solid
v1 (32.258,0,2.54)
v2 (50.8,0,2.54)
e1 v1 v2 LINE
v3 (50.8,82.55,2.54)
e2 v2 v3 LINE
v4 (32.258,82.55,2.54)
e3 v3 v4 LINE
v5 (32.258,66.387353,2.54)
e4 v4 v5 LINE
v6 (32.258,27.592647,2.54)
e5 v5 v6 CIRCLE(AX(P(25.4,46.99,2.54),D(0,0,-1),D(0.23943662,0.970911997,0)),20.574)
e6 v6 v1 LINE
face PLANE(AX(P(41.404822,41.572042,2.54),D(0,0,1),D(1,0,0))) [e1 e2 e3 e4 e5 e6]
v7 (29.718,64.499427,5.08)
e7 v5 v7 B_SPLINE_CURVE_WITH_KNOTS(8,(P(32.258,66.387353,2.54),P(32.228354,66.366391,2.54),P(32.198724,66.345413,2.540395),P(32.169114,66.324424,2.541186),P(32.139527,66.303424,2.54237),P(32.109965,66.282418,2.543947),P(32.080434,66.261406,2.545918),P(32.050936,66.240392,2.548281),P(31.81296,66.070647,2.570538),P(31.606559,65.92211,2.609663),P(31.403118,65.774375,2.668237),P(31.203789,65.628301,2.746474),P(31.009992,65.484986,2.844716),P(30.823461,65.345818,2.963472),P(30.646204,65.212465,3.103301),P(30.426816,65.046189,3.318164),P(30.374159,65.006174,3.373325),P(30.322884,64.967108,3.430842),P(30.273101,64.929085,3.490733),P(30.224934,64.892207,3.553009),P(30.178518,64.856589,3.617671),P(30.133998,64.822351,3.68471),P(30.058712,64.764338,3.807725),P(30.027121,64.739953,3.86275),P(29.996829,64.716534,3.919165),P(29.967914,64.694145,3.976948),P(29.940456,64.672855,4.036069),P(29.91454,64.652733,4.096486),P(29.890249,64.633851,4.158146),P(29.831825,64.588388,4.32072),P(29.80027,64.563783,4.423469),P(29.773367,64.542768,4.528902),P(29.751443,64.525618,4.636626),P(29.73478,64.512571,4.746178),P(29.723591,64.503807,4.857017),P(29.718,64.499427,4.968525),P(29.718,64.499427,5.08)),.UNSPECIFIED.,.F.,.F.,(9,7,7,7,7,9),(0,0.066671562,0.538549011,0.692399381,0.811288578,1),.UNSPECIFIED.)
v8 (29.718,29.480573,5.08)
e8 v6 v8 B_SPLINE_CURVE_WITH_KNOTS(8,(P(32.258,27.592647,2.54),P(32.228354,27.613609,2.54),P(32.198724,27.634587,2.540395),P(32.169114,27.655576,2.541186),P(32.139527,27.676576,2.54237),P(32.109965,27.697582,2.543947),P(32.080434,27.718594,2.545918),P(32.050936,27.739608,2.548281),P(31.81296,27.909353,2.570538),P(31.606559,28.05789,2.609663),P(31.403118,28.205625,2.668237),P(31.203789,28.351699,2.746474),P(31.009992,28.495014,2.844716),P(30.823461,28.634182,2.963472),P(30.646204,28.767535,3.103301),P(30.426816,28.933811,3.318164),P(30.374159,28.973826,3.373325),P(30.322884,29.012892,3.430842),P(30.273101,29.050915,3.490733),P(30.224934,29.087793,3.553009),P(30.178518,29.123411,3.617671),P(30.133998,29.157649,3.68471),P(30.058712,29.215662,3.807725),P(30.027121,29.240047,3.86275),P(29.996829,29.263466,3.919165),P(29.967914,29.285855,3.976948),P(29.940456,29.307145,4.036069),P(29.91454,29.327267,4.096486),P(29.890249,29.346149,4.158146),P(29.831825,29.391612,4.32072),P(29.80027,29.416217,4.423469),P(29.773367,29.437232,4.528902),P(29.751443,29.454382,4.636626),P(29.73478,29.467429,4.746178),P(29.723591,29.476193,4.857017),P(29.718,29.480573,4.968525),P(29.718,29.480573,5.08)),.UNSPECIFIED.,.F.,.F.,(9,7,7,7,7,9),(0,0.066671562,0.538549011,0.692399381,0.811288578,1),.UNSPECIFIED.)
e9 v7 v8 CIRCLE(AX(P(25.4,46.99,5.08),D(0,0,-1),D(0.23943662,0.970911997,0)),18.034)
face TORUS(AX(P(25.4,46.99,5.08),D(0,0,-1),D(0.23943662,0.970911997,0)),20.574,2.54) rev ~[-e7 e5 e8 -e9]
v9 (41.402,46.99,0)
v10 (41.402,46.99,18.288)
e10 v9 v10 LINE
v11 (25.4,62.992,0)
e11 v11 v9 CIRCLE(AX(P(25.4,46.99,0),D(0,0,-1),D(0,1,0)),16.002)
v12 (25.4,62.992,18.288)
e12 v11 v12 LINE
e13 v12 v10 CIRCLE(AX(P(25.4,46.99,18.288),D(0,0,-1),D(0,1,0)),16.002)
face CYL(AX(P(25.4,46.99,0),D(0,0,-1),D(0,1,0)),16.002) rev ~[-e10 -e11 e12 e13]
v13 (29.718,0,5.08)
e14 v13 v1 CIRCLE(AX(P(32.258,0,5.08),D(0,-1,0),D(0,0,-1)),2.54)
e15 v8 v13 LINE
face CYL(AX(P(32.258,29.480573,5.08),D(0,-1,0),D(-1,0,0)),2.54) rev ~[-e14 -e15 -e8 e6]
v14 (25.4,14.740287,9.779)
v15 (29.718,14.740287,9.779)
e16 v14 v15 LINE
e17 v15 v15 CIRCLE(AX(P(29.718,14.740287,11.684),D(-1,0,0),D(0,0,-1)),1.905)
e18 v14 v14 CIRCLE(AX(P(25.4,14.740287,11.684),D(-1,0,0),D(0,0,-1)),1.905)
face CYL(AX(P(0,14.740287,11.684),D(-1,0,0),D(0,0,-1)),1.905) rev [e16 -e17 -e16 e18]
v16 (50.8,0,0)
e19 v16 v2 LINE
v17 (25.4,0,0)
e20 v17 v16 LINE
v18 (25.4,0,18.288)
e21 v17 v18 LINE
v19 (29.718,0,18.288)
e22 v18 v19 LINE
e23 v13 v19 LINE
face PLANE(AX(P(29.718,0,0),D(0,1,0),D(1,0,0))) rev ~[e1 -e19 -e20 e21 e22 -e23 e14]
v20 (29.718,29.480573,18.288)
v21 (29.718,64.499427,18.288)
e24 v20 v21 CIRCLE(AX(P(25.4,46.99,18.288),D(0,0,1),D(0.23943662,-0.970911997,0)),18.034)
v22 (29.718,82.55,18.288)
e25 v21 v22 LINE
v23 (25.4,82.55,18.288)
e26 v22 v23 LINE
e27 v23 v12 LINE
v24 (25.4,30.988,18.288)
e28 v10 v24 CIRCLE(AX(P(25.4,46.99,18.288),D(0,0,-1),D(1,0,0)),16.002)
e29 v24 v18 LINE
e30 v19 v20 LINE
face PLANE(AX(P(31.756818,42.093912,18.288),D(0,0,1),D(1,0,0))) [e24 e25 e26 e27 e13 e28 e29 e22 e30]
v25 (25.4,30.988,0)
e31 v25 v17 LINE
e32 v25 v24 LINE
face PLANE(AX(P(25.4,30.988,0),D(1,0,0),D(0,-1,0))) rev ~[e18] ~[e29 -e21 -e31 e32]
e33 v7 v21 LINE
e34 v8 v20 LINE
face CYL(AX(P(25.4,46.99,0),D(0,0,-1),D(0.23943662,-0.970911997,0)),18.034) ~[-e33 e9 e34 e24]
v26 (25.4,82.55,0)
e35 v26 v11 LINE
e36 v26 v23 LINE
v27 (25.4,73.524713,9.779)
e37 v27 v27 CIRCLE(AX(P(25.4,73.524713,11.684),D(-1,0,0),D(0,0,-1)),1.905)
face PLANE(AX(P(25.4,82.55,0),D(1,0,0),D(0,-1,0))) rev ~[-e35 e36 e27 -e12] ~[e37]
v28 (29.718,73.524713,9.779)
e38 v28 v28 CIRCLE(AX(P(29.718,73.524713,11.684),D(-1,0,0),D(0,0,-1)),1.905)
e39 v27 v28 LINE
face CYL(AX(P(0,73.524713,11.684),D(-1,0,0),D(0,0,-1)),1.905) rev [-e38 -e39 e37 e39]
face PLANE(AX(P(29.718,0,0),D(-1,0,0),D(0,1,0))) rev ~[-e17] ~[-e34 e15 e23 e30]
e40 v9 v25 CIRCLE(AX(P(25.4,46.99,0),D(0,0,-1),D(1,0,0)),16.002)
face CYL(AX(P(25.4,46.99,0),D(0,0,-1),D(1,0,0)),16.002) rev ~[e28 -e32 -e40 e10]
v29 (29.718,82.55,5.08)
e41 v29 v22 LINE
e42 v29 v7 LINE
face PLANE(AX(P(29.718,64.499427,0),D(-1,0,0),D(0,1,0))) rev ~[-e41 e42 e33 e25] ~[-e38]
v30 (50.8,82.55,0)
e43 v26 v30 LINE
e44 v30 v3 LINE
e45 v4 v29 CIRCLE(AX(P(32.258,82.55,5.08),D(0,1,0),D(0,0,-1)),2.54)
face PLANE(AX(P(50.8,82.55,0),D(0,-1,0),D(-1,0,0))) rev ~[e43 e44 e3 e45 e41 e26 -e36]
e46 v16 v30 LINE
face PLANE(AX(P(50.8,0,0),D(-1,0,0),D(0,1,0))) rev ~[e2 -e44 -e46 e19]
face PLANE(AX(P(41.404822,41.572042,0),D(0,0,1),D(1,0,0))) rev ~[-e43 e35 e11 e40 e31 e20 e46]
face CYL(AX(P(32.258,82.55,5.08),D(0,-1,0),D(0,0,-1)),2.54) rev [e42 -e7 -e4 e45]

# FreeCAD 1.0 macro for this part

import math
import FreeCAD as App
import Part
import Sketcher

V = App.Vector
Q = App.Units.Quantity


def edges_at(feature, points):
    """Names of the edges that pass closest to the given points."""
    edges = feature.Shape.Edges
    near = lambda p: min(range(len(edges)), key=lambda i: edges[i].distToShape(Part.Vertex(*p))[0])
    return sorted({f"Edge{near(p) + 1}" for p in points})

doc = App.newDocument("Part")
params = doc.addObject("Spreadsheet::Sheet", "Params")
for row, (alias, value) in enumerate([
    ("sketch1_radius", "0.71 in"),
    ("sketch1_radius2", "0.63 in"),
    ("sketch1_width", "0.17 in"),
    ("sketch1_height", "1.22 in"),
    ("sketch1_height2", "0.77 in"),
    ("pad1_length", "0.72 in"),
    ("sketch2_radius", "0.71 in"),
    ("sketch2_width", "0.83 in"),
    ("sketch2_height", "3.25 in"),
    ("pad2_length", "0.1 in"),
    ("sketch3_diameter", "0.15 in"),
    ("fillet_radius", "0.1 in"),
], start=1):
    params.set(f"A{row}", alias)
    params.set(f"B{row}", "=" + value)
    params.setAlias(f"B{row}", alias)

body = doc.addObject("PartDesign::Body", "Body")

# Sketch on XY plane
sketch1 = body.newObject("Sketcher::SketchObject", "Sketch")
sketch1.AttachmentSupport = (doc.getObject("XY_Plane"), [""])
sketch1.MapMode = "FlatFace"
sketch1.addGeometry([
    Part.LineSegment(V(25.4, 31, 0), V(25.4, 0, 0)),  # 0
    Part.LineSegment(V(25.4, 0, 0), V(29.7, 0, 0)),  # 1
    Part.LineSegment(V(29.7, 0, 0), V(29.7, 29.5, 0)),  # 2
    Part.ArcOfCircle(Part.Circle(V(25.4, 47, 0), V(0, 0, 1), 18), math.radians(-76), math.radians(76)),  # 3
    Part.LineSegment(V(29.7, 64.5, 0), V(29.7, 82.5, 0)),  # 4
    Part.LineSegment(V(29.7, 82.5, 0), V(25.4, 82.5, 0)),  # 5
    Part.LineSegment(V(25.4, 82.5, 0), V(25.4, 63, 0)),  # 6
    Part.ArcOfCircle(Part.Circle(V(25.4, 47, 0), V(0, 0, 1), 16), math.radians(0), math.radians(90)),  # 7
    Part.ArcOfCircle(Part.Circle(V(25.4, 47, 0), V(0, 0, 1), 16), math.radians(-90), math.radians(0)),  # 8
], False)
sketch1.addConstraint([
    Sketcher.Constraint("Coincident", 0, 2, 1, 1),
    Sketcher.Constraint("Coincident", 1, 2, 2, 1),
    Sketcher.Constraint("Coincident", 2, 2, 3, 1),
    Sketcher.Constraint("Coincident", 3, 2, 4, 1),
    Sketcher.Constraint("Coincident", 4, 2, 5, 1),
    Sketcher.Constraint("Coincident", 5, 2, 6, 1),
    Sketcher.Constraint("Coincident", 6, 2, 7, 2),
    Sketcher.Constraint("Tangent", 7, 1, 8, 2),
    Sketcher.Constraint("Coincident", 8, 1, 0, 1),
    Sketcher.Constraint("Vertical", 0),
    Sketcher.Constraint("Horizontal", 1),
    Sketcher.Constraint("Vertical", 2),
    Sketcher.Constraint("Vertical", 4),
    Sketcher.Constraint("Horizontal", 5),
    Sketcher.Constraint("Vertical", 6),
    Sketcher.Constraint("Coincident", 7, 3, 3, 3),
    Sketcher.Constraint("Equal", 7, 8),
    Sketcher.Constraint("PointOnObject", 0, 2, -1),
    Sketcher.Constraint("Horizontal", 8, 3, 7, 1),
    Sketcher.Constraint("Vertical", 8, 3, 0, 2),
    Sketcher.Constraint("Vertical", 2, 2, 3, 2),
    Sketcher.Constraint("Vertical", 0, 2, 5, 2),
    Sketcher.Constraint("Radius", 3, Q("0.71 in")),
    Sketcher.Constraint("Radius", 7, Q("0.63 in")),
    Sketcher.Constraint("DistanceX", -1, 1, 3, 3, Q("1 in")),
    Sketcher.Constraint("DistanceX", 1, 1, 1, 2, Q("0.17 in")),
    Sketcher.Constraint("DistanceY", 0, 2, 0, 1, Q("1.22 in")),
    Sketcher.Constraint("DistanceY", 6, 2, 6, 1, Q("0.77 in")),
])
sketch1.setExpression("Constraints[22]", "Params.sketch1_radius")
sketch1.setExpression("Constraints[23]", "Params.sketch1_radius2")
sketch1.setExpression("Constraints[25]", "Params.sketch1_width")
sketch1.setExpression("Constraints[26]", "Params.sketch1_height")
sketch1.setExpression("Constraints[27]", "Params.sketch1_height2")
pad1 = body.newObject("PartDesign::Pad", "Pad")
pad1.Profile = sketch1
pad1.setExpression("Length", "Params.pad1_length")

# Sketch on XY plane
sketch2 = body.newObject("Sketcher::SketchObject", "Sketch001")
sketch2.AttachmentSupport = (doc.getObject("XY_Plane"), [""])
sketch2.MapMode = "FlatFace"
sketch2.addGeometry([
    Part.LineSegment(V(30, 29, 0), V(30, 0, 0)),  # 0
    Part.LineSegment(V(30, 0, 0), V(51, 0, 0)),  # 1
    Part.LineSegment(V(51, 0, 0), V(51, 83, 0)),  # 2
    Part.LineSegment(V(51, 83, 0), V(30, 83, 0)),  # 3
    Part.LineSegment(V(30, 83, 0), V(30, 64, 0)),  # 4
    Part.ArcOfCircle(Part.Circle(V(25, 47, 0), V(0, 0, 1), 18), math.radians(-76), math.radians(76)),  # 5
], False)
sketch2.addConstraint([
    Sketcher.Constraint("Coincident", 0, 2, 1, 1),
    Sketcher.Constraint("Coincident", 1, 2, 2, 1),
    Sketcher.Constraint("Coincident", 2, 2, 3, 1),
    Sketcher.Constraint("Coincident", 3, 2, 4, 1),
    Sketcher.Constraint("Coincident", 4, 2, 5, 2),
    Sketcher.Constraint("Coincident", 5, 1, 0, 1),
    Sketcher.Constraint("Vertical", 0),
    Sketcher.Constraint("Horizontal", 1),
    Sketcher.Constraint("Vertical", 2),
    Sketcher.Constraint("Horizontal", 3),
    Sketcher.Constraint("Vertical", 4),
    Sketcher.Constraint("PointOnObject", 0, 2, -1),
    Sketcher.Constraint("Vertical", 0, 2, 3, 2),
    Sketcher.Constraint("Radius", 5, Q("0.71 in")),
    Sketcher.Constraint("DistanceX", -1, 1, 5, 3, Q("1 in")),
    Sketcher.Constraint("DistanceX", -1, 1, 1, 2, Q("2 in")),
    Sketcher.Constraint("DistanceX", 1, 1, 1, 2, Q("0.83 in")),
    Sketcher.Constraint("DistanceY", 2, 1, 2, 2, Q("3.25 in")),
    Sketcher.Constraint("DistanceY", 5, 3, 2, 2, Q("1.4 in")),
])
sketch2.setExpression("Constraints[13]", "Params.sketch2_radius")
sketch2.setExpression("Constraints[16]", "Params.sketch2_width")
sketch2.setExpression("Constraints[17]", "Params.sketch2_height")
pad2 = body.newObject("PartDesign::Pad", "Pad001")
pad2.Profile = sketch2
pad2.setExpression("Length", "Params.pad2_length")

# Sketch on YZ plane
sketch3 = body.newObject("Sketcher::SketchObject", "Sketch002")
sketch3.AttachmentSupport = (doc.getObject("YZ_Plane"), [""])
sketch3.MapMode = "FlatFace"
sketch3.addGeometry([
    Part.Circle(V(14.7, 11.7, 0), V(0, 0, 1), 1.9),
    Part.Circle(V(73.5, 11.7, 0), V(0, 0, 1), 1.9),
], False)
sketch3.addConstraint([
    Sketcher.Constraint("Equal", 0, 1),
    Sketcher.Constraint("Horizontal", 0, 3, 1, 3),
    Sketcher.Constraint("Diameter", 0, Q("0.15 in")),
    Sketcher.Constraint("DistanceY", -1, 1, 0, 3, Q("0.46 in")),
    Sketcher.Constraint("DistanceX", -1, 1, 0, 3, Q("14.740287 mm")),
    Sketcher.Constraint("DistanceX", -1, 1, 1, 3, Q("73.524713 mm")),
])
sketch3.setExpression("Constraints[2]", "Params.sketch3_diameter")
pocket1 = body.newObject("PartDesign::Pocket", "Pocket")
pocket1.Profile = sketch3
pocket1.Type = "ThroughAll"
pocket1.Reversed = True
doc.recompute()

fillet = body.newObject("PartDesign::Fillet", "Fillet")
fillet.Base = (pocket1, edges_at(pocket1, [(43.434, 46.99, 2.54), (29.718, 14.74, 2.54), (29.718, 73.525, 2.54)]))
fillet.setExpression("Radius", "Params.fillet_radius")

doc.recompute()
